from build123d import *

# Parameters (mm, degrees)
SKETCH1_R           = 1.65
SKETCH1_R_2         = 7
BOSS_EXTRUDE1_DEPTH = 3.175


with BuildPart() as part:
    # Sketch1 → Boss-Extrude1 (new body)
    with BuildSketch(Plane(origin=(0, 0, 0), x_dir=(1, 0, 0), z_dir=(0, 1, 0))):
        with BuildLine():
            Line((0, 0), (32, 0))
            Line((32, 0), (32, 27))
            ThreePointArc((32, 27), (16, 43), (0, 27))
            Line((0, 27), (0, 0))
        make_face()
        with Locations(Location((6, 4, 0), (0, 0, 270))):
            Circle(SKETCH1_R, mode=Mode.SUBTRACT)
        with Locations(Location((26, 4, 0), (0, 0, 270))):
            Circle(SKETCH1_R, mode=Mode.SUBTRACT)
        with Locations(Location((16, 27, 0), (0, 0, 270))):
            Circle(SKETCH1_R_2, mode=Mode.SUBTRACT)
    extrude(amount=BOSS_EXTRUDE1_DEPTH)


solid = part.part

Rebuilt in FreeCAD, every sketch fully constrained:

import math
import FreeCAD as App
import Part
import Sketcher

V = App.Vector
Q = App.Units.Quantity

doc = App.newDocument("Part")
body = doc.addObject("PartDesign::Body", "Body")

sketch1 = body.newObject("Sketcher::SketchObject", "Sketch")
sketch1.AttachmentSupport = (doc.getObject("XZ_Plane"), [""])
sketch1.MapMode = "FlatFace"
sketch1.addGeometry([
    Part.LineSegment(V(0, 0, 0), V(32, 0, 0)),
    Part.LineSegment(V(32, 0, 0), V(32, -27, 0)),
    Part.ArcOfCircle(Part.Circle(V(16, -27, 0), V(0, 0, 1), 16), math.radians(180), math.radians(360)),
    Part.LineSegment(V(0, -27, 0), V(0, 0, 0)),
    Part.Circle(V(6, -4, 0), V(0, 0, 1), 1.65),
    Part.Circle(V(26, -4, 0), V(0, 0, 1), 1.65),
    Part.Circle(V(16, -27, 0), V(0, 0, 1), 7),
], False)
sketch1.addConstraint([
    Sketcher.Constraint("Coincident", 0, 2, 1, 1),
    Sketcher.Constraint("Tangent", 1, 2, 2, 2),
    Sketcher.Constraint("Tangent", 2, 1, 3, 1),
    Sketcher.Constraint("Coincident", 3, 2, 0, 1),
    Sketcher.Constraint("Horizontal", 0),
    Sketcher.Constraint("Vertical", 1),
    Sketcher.Constraint("Vertical", 3),
    Sketcher.Constraint("Coincident", 3, 2, -1, 1),
    Sketcher.Constraint("Coincident", 6, 3, 2, 3),
    Sketcher.Constraint("Equal", 4, 5),
    Sketcher.Constraint("Horizontal", 4, 3, 5, 3),
    Sketcher.Constraint("Diameter", 6, Q("14 mm")),
    Sketcher.Constraint("Radius", 2, Q("16 mm")),
    Sketcher.Constraint("Diameter", 4, Q("3.3 mm")),
    Sketcher.Constraint("DistanceY", 1, 2, 1, 1, Q("27 mm")),
    Sketcher.Constraint("DistanceX", -1, 1, 4, 3, Q("6 mm")),
    Sketcher.Constraint("DistanceY", 4, 3, -1, 1, Q("4 mm")),
    Sketcher.Constraint("DistanceX", -1, 1, 5, 3, Q("26 mm")),
])
pad1 = body.newObject("PartDesign::Pad", "Pad")
pad1.Profile = sketch1
pad1.Length = 3.175
pad1.Reversed = True

doc.recompute()
